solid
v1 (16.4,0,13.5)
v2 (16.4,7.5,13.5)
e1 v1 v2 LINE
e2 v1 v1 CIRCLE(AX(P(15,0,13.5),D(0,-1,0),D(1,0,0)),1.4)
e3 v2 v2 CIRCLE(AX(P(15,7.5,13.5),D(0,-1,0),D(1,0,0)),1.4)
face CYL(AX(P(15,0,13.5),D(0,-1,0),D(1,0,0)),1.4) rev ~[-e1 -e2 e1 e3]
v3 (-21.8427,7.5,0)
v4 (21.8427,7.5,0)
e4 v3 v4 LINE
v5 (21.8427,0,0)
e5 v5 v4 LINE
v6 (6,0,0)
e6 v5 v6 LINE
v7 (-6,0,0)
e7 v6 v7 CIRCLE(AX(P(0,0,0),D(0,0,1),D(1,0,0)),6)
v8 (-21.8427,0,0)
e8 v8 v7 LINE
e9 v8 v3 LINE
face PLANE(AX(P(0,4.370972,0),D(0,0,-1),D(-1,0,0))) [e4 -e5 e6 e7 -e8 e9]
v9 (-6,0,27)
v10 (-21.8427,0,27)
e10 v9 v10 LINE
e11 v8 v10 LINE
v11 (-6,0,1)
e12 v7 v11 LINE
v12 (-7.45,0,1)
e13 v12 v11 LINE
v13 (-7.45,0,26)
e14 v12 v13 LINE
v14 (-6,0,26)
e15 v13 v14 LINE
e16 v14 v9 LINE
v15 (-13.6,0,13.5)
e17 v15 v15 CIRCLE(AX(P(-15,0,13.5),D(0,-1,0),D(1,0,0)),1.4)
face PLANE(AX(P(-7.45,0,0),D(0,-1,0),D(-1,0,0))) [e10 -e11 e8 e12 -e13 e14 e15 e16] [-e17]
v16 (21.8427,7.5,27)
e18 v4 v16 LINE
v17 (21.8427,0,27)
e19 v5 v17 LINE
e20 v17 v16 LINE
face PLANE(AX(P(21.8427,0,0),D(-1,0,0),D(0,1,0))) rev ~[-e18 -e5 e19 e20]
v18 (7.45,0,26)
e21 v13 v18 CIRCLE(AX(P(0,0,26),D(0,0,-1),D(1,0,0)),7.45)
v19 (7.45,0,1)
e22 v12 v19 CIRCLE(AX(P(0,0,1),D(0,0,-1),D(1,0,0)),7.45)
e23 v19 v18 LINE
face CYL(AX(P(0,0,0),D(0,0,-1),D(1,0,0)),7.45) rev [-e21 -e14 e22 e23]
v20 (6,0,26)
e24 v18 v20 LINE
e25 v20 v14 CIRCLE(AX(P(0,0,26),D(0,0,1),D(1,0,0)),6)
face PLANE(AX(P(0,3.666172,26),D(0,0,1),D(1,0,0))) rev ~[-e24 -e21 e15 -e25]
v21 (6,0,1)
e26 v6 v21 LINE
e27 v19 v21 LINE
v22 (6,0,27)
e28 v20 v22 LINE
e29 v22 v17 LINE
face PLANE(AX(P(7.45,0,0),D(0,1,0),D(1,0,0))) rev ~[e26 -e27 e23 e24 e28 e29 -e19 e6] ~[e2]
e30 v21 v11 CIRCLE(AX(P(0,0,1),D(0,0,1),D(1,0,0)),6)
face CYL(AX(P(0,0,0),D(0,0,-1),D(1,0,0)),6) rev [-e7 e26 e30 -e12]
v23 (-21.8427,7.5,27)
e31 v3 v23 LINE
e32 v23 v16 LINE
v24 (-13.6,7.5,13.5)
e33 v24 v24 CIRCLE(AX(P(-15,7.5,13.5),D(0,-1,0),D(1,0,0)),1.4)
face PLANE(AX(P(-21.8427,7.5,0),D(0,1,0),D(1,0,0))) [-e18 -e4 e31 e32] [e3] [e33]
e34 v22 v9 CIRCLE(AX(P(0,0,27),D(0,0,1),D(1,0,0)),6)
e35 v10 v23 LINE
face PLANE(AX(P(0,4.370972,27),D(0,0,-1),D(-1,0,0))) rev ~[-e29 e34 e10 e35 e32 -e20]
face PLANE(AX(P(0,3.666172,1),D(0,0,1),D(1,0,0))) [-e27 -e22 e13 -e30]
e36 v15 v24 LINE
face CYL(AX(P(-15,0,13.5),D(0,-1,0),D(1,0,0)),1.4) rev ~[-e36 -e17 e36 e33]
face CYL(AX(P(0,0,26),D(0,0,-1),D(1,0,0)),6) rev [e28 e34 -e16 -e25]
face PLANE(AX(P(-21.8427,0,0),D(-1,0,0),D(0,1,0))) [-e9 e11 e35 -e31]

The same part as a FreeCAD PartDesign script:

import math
import FreeCAD as App
import Part
import Sketcher
from FreeCAD import Vector

doc = App.newDocument("Part")
body = doc.addObject("PartDesign::Body", "Body")
body.AllowCompound = True

sketch1 = doc.addObject("Sketcher::SketchObject", "Sketch")
body.addObject(sketch1)
sketch1.AttachmentSupport = (doc.XZ_Plane, [""])
sketch1.MapMode = "FlatFace"
sketch1.addGeometry([
    Part.Circle(Vector(-15, 13.5, 0), Vector(0, 0, 1), 1.4),
    Part.Circle(Vector(15, 13.5, 0), Vector(0, 0, 1), 1.4),
], False)
sketch1.addConstraint([
    Sketcher.Constraint("Equal", 0, 1),
    Sketcher.Constraint("Symmetric", 0, 3, 1, 3, -2),
    Sketcher.Constraint("Diameter", 0, 2.8),
    Sketcher.Constraint("DistanceX", 0, 3, -1, 1, 15.0),
    Sketcher.Constraint("DistanceY", -1, 1, 0, 3, 13.5),
])
pad1 = doc.addObject("PartDesign::Pad", "Pad")
body.addObject(pad1)
pad1.Profile = sketch1
pad1.Length = 7.5
pad1.Reversed = True
body2 = doc.addObject("PartDesign::Body", "Body001")

sketch2 = doc.addObject("Sketcher::SketchObject", "Sketch001")
body2.addObject(sketch2)
sketch2.AttachmentSupport = (doc.getObject("XY_Plane001"), [""])
sketch2.MapMode = "FlatFace"
sketch2.AttachmentOffset = App.Placement(Vector(0, 0, 26), App.Rotation())
sketch2.addGeometry([
    Part.ArcOfCircle(Part.Circle(Vector(0, 0, 0), Vector(0, 0, 1), 7.5), math.radians(0), math.radians(180)),
    Part.LineSegment(Vector(-7.5, 0, 0), Vector(-6, 0, 0)),
    Part.ArcOfCircle(Part.Circle(Vector(0, 0, 0), Vector(0, 0, 1), 6), math.radians(0), math.radians(180)),
    Part.LineSegment(Vector(6, 0, 0), Vector(7.5, 0, 0)),
], False)
sketch2.addConstraint([
    Sketcher.Constraint("Coincident", 0, 2, 1, 1),
    Sketcher.Constraint("Coincident", 1, 2, 2, 2),
    Sketcher.Constraint("Coincident", 2, 1, 3, 1),
    Sketcher.Constraint("Coincident", 3, 2, 0, 1),
    Sketcher.Constraint("Horizontal", 1),
    Sketcher.Constraint("Horizontal", 3),
    Sketcher.Constraint("Coincident", 0, 3, -1, 1),
    Sketcher.Constraint("Coincident", 2, 3, -1, 1),
    Sketcher.Constraint("PointOnObject", 0, 2, -1),
    Sketcher.Constraint("PointOnObject", 2, 1, -1),
    Sketcher.Constraint("Radius", 2, 6.0),
    Sketcher.Constraint("Radius", 0, 7.46),
])
pad2 = doc.addObject("PartDesign::Pad", "Pad001")
body2.addObject(pad2)
pad2.Profile = sketch2
pad2.Length = 1
body3 = doc.addObject("PartDesign::Body", "Body002")

sketch3 = doc.addObject("Sketcher::SketchObject", "Sketch002")
body3.addObject(sketch3)
sketch3.AttachmentSupport = (doc.getObject("XY_Plane002"), [""])
sketch3.MapMode = "FlatFace"
sketch3.addGeometry([
    Part.ArcOfCircle(Part.Circle(Vector(0, 0, 0), Vector(0, 0, 1), 7.5), math.radians(0), math.radians(180)),
    Part.LineSegment(Vector(-7.5, 0, 0), Vector(-6, 0, 0)),
    Part.ArcOfCircle(Part.Circle(Vector(0, 0, 0), Vector(0, 0, 1), 6), math.radians(0), math.radians(180)),
    Part.LineSegment(Vector(6, 0, 0), Vector(7.5, 0, 0)),
], False)
sketch3.addConstraint([
    Sketcher.Constraint("Coincident", 0, 2, 1, 1),
    Sketcher.Constraint("Coincident", 1, 2, 2, 2),
    Sketcher.Constraint("Coincident", 2, 1, 3, 1),
    Sketcher.Constraint("Coincident", 3, 2, 0, 1),
    Sketcher.Constraint("Horizontal", 1),
    Sketcher.Constraint("Horizontal", 3),
    Sketcher.Constraint("Coincident", 0, 3, -1, 1),
    Sketcher.Constraint("Coincident", 2, 3, -1, 1),
    Sketcher.Constraint("PointOnObject", 0, 2, -1),
    Sketcher.Constraint("PointOnObject", 2, 1, -1),
    Sketcher.Constraint("Radius", 2, 6.0),
    Sketcher.Constraint("Radius", 0, 7.46),
])
pad3 = doc.addObject("PartDesign::Pad", "Pad002")
body3.addObject(pad3)
pad3.Profile = sketch3
pad3.Length = 1
body4 = doc.addObject("PartDesign::Body", "Body003")

sketch4 = doc.addObject("Sketcher::SketchObject", "Sketch003")
body4.addObject(sketch4)
sketch4.AttachmentSupport = (doc.getObject("XY_Plane003"), [""])
sketch4.MapMode = "FlatFace"
sketch4.addGeometry([
    Part.ArcOfCircle(Part.Circle(Vector(0, 0, 0), Vector(0, 0, 1), 7), math.radians(0), math.radians(180)),
    Part.LineSegment(Vector(7, 0, 0), Vector(22, 0, 0)),
    Part.LineSegment(Vector(22, 0, 0), Vector(22, 8, 0)),
    Part.LineSegment(Vector(22, 8, 0), Vector(-22, 8, 0)),
    Part.LineSegment(Vector(-22, 8, 0), Vector(-22, 0, 0)),
    Part.LineSegment(Vector(-22, 0, 0), Vector(-7, 0, 0)),
], False)
sketch4.addConstraint([
    Sketcher.Constraint("Coincident", 0, 1, 1, 1),
    Sketcher.Constraint("Coincident", 1, 2, 2, 1),
    Sketcher.Constraint("Coincident", 2, 2, 3, 1),
    Sketcher.Constraint("Coincident", 3, 2, 4, 1),
    Sketcher.Constraint("Coincident", 4, 2, 5, 1),
    Sketcher.Constraint("Coincident", 5, 2, 0, 2),
    Sketcher.Constraint("Horizontal", 1),
    Sketcher.Constraint("Vertical", 2),
    Sketcher.Constraint("Horizontal", 3),
    Sketcher.Constraint("Vertical", 4),
    Sketcher.Constraint("Horizontal", 5),
    Sketcher.Constraint("Coincident", 0, 3, -1, 1),
    Sketcher.Constraint("Symmetric", 1, 2, 4, 2, -1, 1),
    Sketcher.Constraint("PointOnObject", 0, 1, -1),
    Sketcher.Constraint("Radius", 0, 7.45),
    Sketcher.Constraint("DistanceY", 2, 1, 2, 2, 7.5),
    Sketcher.Constraint("DistanceX", 1, 1, 1, 2, 14.3927),
])
pad4 = doc.addObject("PartDesign::Pad", "Pad003")
body4.addObject(pad4)
pad4.Profile = sketch4
pad4.Length = 27
doc.recompute()

boolean = doc.addObject("PartDesign::Boolean", "Boolean")
body4.addObject(boolean)
boolean.Type = "Fuse"
boolean.addObjects([body2])
doc.recompute()

boolean2 = doc.addObject("PartDesign::Boolean", "Boolean001")
body4.addObject(boolean2)
boolean2.Type = "Fuse"
boolean2.addObjects([body3])
doc.recompute()

boolean3 = doc.addObject("PartDesign::Boolean", "Boolean002")
body4.addObject(boolean3)
boolean3.Type = "Cut"
boolean3.addObjects([body])

doc.recompute()
